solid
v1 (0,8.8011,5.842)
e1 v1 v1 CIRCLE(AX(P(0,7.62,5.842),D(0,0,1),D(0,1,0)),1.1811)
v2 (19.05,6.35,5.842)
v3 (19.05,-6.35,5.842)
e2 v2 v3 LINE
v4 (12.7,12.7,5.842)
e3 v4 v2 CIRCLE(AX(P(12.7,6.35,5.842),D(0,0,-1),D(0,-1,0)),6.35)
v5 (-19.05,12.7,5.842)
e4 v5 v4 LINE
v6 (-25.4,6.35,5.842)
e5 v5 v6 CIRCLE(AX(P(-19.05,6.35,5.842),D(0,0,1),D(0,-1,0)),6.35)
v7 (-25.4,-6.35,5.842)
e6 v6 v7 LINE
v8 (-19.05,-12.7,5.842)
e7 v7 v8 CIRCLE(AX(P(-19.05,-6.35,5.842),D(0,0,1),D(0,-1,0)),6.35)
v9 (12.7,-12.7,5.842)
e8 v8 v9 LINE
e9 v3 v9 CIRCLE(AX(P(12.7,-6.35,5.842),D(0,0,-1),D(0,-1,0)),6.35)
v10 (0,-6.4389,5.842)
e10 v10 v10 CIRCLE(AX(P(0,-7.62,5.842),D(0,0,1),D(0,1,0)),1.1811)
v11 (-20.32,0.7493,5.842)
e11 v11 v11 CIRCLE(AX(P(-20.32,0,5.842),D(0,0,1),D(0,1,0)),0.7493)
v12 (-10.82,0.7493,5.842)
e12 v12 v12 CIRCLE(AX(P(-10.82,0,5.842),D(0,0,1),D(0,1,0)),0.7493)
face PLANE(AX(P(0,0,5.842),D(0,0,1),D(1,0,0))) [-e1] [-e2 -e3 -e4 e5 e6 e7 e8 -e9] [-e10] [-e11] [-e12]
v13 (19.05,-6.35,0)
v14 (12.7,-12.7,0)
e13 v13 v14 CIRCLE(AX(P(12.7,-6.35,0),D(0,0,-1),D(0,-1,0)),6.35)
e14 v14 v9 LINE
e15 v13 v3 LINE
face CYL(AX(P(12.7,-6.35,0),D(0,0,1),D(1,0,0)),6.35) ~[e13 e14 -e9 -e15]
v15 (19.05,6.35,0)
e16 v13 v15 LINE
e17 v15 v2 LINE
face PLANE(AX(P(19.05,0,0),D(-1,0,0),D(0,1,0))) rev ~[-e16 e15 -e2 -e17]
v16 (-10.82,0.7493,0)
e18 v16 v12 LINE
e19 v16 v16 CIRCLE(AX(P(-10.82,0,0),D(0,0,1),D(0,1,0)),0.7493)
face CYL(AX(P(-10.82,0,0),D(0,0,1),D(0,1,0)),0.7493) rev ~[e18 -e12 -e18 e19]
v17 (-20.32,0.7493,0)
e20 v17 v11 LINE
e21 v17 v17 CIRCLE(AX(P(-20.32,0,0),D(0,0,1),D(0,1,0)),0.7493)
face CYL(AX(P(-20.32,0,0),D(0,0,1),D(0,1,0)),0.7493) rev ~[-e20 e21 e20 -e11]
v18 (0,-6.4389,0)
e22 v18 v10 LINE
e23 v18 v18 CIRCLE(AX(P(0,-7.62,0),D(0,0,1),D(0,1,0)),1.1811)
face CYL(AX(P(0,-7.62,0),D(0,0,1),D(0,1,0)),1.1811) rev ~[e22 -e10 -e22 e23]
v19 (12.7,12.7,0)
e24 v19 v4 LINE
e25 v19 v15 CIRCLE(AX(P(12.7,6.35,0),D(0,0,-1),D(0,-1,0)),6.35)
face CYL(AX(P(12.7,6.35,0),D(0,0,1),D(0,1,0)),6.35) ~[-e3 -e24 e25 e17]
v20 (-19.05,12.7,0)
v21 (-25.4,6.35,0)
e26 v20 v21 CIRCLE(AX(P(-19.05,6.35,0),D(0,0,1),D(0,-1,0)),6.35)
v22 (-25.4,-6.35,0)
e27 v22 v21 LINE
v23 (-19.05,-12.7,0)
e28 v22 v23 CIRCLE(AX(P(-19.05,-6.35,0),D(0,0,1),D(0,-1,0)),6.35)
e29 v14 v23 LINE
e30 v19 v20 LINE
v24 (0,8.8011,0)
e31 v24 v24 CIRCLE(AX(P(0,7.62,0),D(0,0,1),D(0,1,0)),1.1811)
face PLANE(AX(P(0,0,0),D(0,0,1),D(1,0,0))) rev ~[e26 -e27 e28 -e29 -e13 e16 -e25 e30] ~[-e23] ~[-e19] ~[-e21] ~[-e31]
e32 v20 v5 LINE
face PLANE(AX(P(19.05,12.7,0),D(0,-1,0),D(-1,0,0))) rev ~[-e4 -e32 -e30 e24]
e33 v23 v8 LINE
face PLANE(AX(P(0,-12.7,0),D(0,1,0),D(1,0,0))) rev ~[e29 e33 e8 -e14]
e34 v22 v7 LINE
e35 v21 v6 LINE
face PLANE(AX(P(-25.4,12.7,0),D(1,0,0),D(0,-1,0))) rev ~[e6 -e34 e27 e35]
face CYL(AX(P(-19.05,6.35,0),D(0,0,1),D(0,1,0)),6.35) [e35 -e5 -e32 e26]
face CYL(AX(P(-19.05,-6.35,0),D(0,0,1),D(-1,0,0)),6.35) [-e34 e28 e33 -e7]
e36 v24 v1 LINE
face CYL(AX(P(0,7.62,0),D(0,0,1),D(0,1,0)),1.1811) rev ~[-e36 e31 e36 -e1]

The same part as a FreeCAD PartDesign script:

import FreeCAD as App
import Part
import Sketcher

V = App.Vector
Q = App.Units.Quantity


def edges_at(feature, points):
    """Names of the edges that pass closest to the given points."""
    edges = feature.Shape.Edges
    near = lambda p: min(range(len(edges)), key=lambda i: edges[i].distToShape(Part.Vertex(*p))[0])
    return sorted({f"Edge{near(p) + 1}" for p in points})

doc = App.newDocument("Part")
params = doc.addObject("Spreadsheet::Sheet", "Params")
for row, (alias, value) in enumerate([
    ("sketch1_height", "1 in"),
    ("sketch1_width", "1.75 in"),
    ("pad1_length", "0.23 in"),
    ("sketch2_diameter", "0.059 in"),
    ("hole_diameter", "0.059 in"),
    ("sketch3_diameter", "0.093 in"),
    ("hole2_diameter", "0.093 in"),
    ("fillet_radius", "0.25 in"),
], start=1):
    params.set(f"A{row}", alias)
    params.set(f"B{row}", "=" + value)
    params.setAlias(f"B{row}", alias)

body = doc.addObject("PartDesign::Body", "Body")

sketch1 = doc.addObject("Sketcher::SketchObject", "Sketch")
body.addObject(sketch1)
sketch1.AttachmentSupport = (doc.XY_Plane, [""])
sketch1.MapMode = "FlatFace"
sketch1.addGeometry(Part.LineSegment(V(19.05, 12.7, 0), V(-25.4, 12.7, 0)), False)
sketch1.addGeometry(Part.LineSegment(V(-25.4, 12.7, 0), V(-25.4, -12.7, 0)), False)
sketch1.addGeometry(Part.LineSegment(V(-25.4, -12.7, 0), V(19.05, -12.7, 0)), False)
sketch1.addGeometry(Part.LineSegment(V(19.05, -12.7, 0), V(19.05, 12.7, 0)), False)
sketch1.addConstraint(Sketcher.Constraint("Coincident", 0, 2, 1, 1))
sketch1.addConstraint(Sketcher.Constraint("Coincident", 1, 2, 2, 1))
sketch1.addConstraint(Sketcher.Constraint("Coincident", 2, 2, 3, 1))
sketch1.addConstraint(Sketcher.Constraint("Coincident", 3, 2, 0, 1))
sketch1.addConstraint(Sketcher.Constraint("Horizontal", 0))
sketch1.addConstraint(Sketcher.Constraint("Vertical", 1))
sketch1.addConstraint(Sketcher.Constraint("Horizontal", 2))
sketch1.addConstraint(Sketcher.Constraint("Vertical", 3))
sketch1.addConstraint(Sketcher.Constraint("DistanceY", 1, 2, 1, 1, Q("1 in")))
sketch1.addConstraint(Sketcher.Constraint("DistanceX", 0, 2, -1, 1, Q("1 in")))
sketch1.addConstraint(Sketcher.Constraint("DistanceX", 0, 2, 0, 1, Q("1.75 in")))
sketch1.addConstraint(Sketcher.Constraint("DistanceY", -1, 1, 0, 2, Q("0.5 in")))
sketch1.setExpression("Constraints[8]", "Params.sketch1_height")
sketch1.setExpression("Constraints[10]", "Params.sketch1_width")
pad1 = doc.addObject("PartDesign::Pad", "Pad")
body.addObject(pad1)
pad1.Profile = sketch1
pad1.setExpression("Length", "Params.pad1_length")

sketch2 = doc.addObject("Sketcher::SketchObject", "Sketch001")
body.addObject(sketch2)
sketch2.AttachmentSupport = (doc.XY_Plane, [""])
sketch2.MapMode = "FlatFace"
sketch2.addGeometry(Part.Circle(V(-20.32, 0, 0), V(0, 0, 1), 0.7493), False)
sketch2.addGeometry(Part.Circle(V(-10.82, 0, 0), V(0, 0, 1), 0.7493), False)
sketch2.addConstraint(Sketcher.Constraint("Equal", 0, 1))
sketch2.addConstraint(Sketcher.Constraint("PointOnObject", 0, 3, -1))
sketch2.addConstraint(Sketcher.Constraint("PointOnObject", 1, 3, -1))
sketch2.addConstraint(Sketcher.Constraint("Diameter", 0, Q("0.059 in")))
sketch2.addConstraint(Sketcher.Constraint("DistanceX", 0, 3, -1, 1, Q("0.8 in")))
sketch2.addConstraint(Sketcher.Constraint("DistanceX", 1, 3, -1, 1, 10.82))
sketch2.setExpression("Constraints[3]", "Params.sketch2_diameter")
doc.recompute()
hole = doc.addObject("PartDesign::Hole", "Hole")
body.addObject(hole)
hole.Profile = sketch2
hole.ThreadType = "None"
hole.setExpression("Diameter", "Params.hole_diameter")
hole.DepthType = "ThroughAll"
hole.Reversed = True

sketch3 = doc.addObject("Sketcher::SketchObject", "Sketch002")
body.addObject(sketch3)
sketch3.AttachmentSupport = (doc.XY_Plane, [""])
sketch3.MapMode = "FlatFace"
sketch3.addGeometry(Part.Circle(V(0, 7.62, 0), V(0, 0, 1), 1.1811), False)
sketch3.addGeometry(Part.Circle(V(0, -7.62, 0), V(0, 0, 1), 1.1811), False)
sketch3.addConstraint(Sketcher.Constraint("Equal", 0, 1))
sketch3.addConstraint(Sketcher.Constraint("Symmetric", 0, 3, 1, 3, -1, 1))
sketch3.addConstraint(Sketcher.Constraint("PointOnObject", 0, 3, -2))
sketch3.addConstraint(Sketcher.Constraint("Diameter", 0, Q("0.093 in")))
sketch3.addConstraint(Sketcher.Constraint("DistanceY", -1, 1, 0, 3, Q("0.3 in")))
sketch3.setExpression("Constraints[3]", "Params.sketch3_diameter")
doc.recompute()
hole2 = doc.addObject("PartDesign::Hole", "Hole001")
body.addObject(hole2)
hole2.Profile = sketch3
hole2.ThreadType = "None"
hole2.setExpression("Diameter", "Params.hole2_diameter")
hole2.DepthType = "ThroughAll"
hole2.Reversed = True
doc.recompute()

fillet = doc.addObject("PartDesign::Fillet", "Fillet")
body.addObject(fillet)
fillet.Base = (hole2, edges_at(hole2, [
    (19.05, 12.7, 2.921),
    (-25.4, 12.7, 2.921),
    (-25.4, -12.7, 2.921),
    (19.05, -12.7, 2.921),
]))
fillet.setExpression("Radius", "Params.fillet_radius")

doc.recompute()
